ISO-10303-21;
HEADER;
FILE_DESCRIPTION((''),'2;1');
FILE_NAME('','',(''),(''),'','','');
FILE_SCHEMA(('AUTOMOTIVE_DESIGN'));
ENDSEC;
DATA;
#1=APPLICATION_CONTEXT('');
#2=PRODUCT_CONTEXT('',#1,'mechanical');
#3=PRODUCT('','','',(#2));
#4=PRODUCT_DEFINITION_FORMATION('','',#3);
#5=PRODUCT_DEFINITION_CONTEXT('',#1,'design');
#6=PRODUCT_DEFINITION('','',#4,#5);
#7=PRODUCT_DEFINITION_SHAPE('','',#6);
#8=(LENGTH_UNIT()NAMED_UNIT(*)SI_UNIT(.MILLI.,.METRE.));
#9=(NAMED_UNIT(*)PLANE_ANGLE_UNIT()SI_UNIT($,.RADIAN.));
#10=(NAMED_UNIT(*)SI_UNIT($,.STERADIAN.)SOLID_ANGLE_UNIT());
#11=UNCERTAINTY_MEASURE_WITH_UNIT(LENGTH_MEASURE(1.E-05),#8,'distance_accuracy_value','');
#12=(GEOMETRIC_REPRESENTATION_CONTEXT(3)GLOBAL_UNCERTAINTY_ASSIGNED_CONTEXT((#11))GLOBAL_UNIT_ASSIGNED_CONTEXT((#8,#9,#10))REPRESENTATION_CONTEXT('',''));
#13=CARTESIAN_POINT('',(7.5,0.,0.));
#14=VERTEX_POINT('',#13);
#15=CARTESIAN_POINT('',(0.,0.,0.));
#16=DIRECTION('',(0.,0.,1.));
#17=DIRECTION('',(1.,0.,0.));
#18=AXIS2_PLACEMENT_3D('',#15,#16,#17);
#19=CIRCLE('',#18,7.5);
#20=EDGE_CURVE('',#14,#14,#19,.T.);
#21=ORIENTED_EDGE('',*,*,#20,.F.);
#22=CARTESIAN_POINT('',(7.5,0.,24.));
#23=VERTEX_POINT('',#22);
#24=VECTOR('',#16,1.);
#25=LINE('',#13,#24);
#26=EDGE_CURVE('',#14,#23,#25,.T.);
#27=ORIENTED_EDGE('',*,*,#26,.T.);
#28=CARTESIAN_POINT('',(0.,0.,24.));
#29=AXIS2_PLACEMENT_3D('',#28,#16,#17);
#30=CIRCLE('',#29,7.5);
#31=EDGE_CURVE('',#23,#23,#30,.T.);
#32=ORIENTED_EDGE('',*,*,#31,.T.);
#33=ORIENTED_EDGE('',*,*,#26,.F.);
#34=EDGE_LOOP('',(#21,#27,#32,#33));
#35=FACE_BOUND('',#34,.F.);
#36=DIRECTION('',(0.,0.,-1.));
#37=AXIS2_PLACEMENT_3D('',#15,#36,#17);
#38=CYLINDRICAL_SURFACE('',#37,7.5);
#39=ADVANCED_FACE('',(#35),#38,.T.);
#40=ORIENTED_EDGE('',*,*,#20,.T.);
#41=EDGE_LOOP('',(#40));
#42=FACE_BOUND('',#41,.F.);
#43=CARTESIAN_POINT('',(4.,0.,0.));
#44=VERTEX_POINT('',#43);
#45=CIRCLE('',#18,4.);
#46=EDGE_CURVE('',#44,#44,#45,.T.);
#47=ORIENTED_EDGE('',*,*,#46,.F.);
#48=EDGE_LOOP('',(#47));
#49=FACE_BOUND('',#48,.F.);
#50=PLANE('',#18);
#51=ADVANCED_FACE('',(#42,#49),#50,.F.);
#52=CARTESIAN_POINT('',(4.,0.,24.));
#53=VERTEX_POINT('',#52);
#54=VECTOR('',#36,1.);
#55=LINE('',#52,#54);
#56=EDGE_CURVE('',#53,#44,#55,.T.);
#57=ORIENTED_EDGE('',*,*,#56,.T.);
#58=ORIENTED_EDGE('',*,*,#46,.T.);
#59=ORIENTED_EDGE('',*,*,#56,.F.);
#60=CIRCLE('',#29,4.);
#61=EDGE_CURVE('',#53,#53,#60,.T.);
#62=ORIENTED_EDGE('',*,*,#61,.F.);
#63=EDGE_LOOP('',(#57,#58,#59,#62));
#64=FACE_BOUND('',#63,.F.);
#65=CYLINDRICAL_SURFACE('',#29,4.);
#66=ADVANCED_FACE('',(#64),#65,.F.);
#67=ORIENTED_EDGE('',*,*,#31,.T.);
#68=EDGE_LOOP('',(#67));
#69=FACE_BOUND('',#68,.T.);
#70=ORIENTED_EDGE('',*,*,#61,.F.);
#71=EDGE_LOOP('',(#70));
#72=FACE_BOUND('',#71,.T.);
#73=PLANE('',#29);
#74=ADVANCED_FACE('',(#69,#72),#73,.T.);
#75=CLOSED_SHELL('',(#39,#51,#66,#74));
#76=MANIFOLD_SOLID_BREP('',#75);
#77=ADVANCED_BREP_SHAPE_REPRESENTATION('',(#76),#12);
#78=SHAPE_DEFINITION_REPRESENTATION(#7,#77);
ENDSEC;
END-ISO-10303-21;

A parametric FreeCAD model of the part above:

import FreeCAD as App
import Part
import Sketcher
from FreeCAD import Vector

doc = App.newDocument("Part")
params = doc.addObject("Spreadsheet::Sheet", "Params")
for row, (alias, value) in enumerate([
    ("sketch1_diameter", "15 mm"),
    ("pad1_length", "24 mm"),
    ("sketch2_diameter", "8 mm"),
    ("pocket1_length", "24 mm"),
], start=1):
    params.set(f"A{row}", alias)
    params.set(f"B{row}", "=" + value)
    params.setAlias(f"B{row}", alias)

body = doc.addObject("PartDesign::Body", "Body")

# Sketch on XY plane
sketch1 = doc.addObject("Sketcher::SketchObject", "Sketch")
body.addObject(sketch1)
sketch1.AttachmentSupport = (doc.XY_Plane, [""])
sketch1.MapMode = "FlatFace"
sketch1.addGeometry(Part.Circle(Vector(0, 0, 0), Vector(0, 0, 1), 7.5), False)
sketch1.addConstraint([
    Sketcher.Constraint("Coincident", 0, 3, -1, 1),
    Sketcher.Constraint("Diameter", 0, 15.0),
])
sketch1.setExpression("Constraints[1]", "Params.sketch1_diameter")
pad1 = doc.addObject("PartDesign::Pad", "Pad")
body.addObject(pad1)
pad1.Profile = sketch1
pad1.setExpression("Length", "Params.pad1_length")

# Sketch on XY plane
sketch2 = doc.addObject("Sketcher::SketchObject", "Sketch001")
body.addObject(sketch2)
sketch2.AttachmentSupport = (doc.XY_Plane, [""])
sketch2.MapMode = "FlatFace"
sketch2.AttachmentOffset = App.Placement(Vector(0, 0, 24), App.Rotation())
sketch2.addGeometry(Part.Circle(Vector(0, 0, 0), Vector(0, 0, 1), 4), False)
sketch2.addConstraint([
    Sketcher.Constraint("Coincident", 0, 3, -1, 1),
    Sketcher.Constraint("Diameter", 0, 8.0),
])
sketch2.setExpression("Constraints[1]", "Params.sketch2_diameter")
pocket1 = doc.addObject("PartDesign::Pocket", "Pocket")
body.addObject(pocket1)
pocket1.Profile = sketch2
pocket1.setExpression("Length", "Params.pocket1_length")

doc.recompute()
